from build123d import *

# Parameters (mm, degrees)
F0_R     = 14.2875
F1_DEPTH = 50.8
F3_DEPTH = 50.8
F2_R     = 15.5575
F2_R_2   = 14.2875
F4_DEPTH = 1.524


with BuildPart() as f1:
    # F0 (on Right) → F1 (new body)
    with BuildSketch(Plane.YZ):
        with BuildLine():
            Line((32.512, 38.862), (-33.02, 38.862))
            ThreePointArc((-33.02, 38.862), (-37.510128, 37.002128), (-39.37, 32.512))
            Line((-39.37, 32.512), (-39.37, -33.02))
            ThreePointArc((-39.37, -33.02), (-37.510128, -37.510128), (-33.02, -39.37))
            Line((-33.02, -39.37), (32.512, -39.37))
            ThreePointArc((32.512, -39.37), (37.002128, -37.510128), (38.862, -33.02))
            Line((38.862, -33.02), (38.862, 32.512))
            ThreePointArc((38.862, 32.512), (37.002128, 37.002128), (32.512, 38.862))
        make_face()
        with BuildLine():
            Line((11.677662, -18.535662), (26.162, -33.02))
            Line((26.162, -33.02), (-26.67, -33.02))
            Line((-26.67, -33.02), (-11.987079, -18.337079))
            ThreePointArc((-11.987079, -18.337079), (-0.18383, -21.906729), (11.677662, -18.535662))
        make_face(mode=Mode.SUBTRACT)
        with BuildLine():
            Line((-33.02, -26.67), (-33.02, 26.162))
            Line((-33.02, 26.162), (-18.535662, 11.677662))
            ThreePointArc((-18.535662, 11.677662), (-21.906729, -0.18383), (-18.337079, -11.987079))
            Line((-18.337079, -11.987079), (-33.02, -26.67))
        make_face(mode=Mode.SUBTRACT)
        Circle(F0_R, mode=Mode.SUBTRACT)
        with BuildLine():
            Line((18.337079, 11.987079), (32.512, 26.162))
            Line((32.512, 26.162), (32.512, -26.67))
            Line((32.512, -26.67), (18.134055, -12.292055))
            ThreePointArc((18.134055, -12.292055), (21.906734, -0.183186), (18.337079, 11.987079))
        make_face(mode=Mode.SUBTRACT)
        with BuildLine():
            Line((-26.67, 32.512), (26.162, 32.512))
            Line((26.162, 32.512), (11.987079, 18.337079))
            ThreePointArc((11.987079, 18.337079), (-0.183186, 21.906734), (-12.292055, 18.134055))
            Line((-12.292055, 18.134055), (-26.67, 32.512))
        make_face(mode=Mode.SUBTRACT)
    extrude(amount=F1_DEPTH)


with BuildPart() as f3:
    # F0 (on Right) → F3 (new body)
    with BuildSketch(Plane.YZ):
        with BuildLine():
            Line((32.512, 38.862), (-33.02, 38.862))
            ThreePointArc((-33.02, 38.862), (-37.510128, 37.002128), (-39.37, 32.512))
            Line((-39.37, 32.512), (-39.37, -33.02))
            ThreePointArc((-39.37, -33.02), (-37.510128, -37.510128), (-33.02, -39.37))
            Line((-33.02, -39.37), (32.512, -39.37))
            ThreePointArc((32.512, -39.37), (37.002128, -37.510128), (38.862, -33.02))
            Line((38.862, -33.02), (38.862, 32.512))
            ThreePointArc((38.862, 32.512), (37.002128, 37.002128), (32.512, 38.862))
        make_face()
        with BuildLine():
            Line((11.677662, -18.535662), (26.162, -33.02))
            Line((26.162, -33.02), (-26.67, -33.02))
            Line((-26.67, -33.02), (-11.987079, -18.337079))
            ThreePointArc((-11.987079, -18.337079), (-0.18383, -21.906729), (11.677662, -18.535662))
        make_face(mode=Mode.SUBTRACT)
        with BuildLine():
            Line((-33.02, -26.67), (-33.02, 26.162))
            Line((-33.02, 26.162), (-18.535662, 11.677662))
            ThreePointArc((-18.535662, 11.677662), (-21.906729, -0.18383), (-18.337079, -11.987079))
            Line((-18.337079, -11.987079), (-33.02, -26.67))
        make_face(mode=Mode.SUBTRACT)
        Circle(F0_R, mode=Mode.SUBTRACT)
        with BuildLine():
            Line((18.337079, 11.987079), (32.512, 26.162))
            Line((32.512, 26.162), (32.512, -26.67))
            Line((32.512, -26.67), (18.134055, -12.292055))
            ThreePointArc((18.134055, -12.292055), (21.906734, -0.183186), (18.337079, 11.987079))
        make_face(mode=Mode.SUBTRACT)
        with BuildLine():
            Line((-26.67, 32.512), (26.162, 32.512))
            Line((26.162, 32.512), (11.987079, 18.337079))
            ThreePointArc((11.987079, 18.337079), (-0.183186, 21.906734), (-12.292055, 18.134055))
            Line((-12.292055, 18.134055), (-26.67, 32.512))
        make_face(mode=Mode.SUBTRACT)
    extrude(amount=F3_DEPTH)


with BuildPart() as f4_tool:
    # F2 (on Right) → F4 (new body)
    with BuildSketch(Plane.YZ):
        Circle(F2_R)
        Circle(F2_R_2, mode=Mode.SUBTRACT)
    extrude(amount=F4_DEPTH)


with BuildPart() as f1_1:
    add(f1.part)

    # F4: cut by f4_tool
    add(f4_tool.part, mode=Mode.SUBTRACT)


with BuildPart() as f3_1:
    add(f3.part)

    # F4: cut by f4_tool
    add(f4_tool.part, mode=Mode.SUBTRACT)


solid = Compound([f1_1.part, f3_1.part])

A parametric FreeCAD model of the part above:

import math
import FreeCAD as App
import Part
import Sketcher

V = App.Vector
Q = App.Units.Quantity

doc = App.newDocument("Part")
body = doc.addObject("PartDesign::Body", "Body")

sketch1 = body.newObject("Sketcher::SketchObject", "Sketch")
sketch1.AttachmentSupport = (doc.getObject("YZ_Plane"), [""])
sketch1.MapMode = "FlatFace"
sketch1.addGeometry(Part.LineSegment(V(33, 39, 0), V(-33, 39, 0)), False)
sketch1.addGeometry(Part.ArcOfCircle(Part.Circle(V(-33, 33, 0), V(0, 0, 1), 6), math.radians(90), math.radians(180)), False)
sketch1.addGeometry(Part.LineSegment(V(-39, 33, 0), V(-39, -33, 0)), False)
sketch1.addGeometry(Part.ArcOfCircle(Part.Circle(V(-33, -33, 0), V(0, 0, 1), 6), math.radians(-180), math.radians(-90)), False)
sketch1.addGeometry(Part.LineSegment(V(-33, -39, 0), V(33, -39, 0)), False)
sketch1.addGeometry(Part.ArcOfCircle(Part.Circle(V(33, -33, 0), V(0, 0, 1), 6), math.radians(-90), math.radians(0)), False)
sketch1.addGeometry(Part.LineSegment(V(39, -33, 0), V(39, 33, 0)), False)
sketch1.addGeometry(Part.ArcOfCircle(Part.Circle(V(33, 33, 0), V(0, 0, 1), 6), math.radians(0), math.radians(90)), False)
sketch1.addGeometry(Part.ArcOfCircle(Part.Circle(V(0, 0, 0), V(0, 0, 1), 22), math.radians(-123), math.radians(-58)), False)
sketch1.addGeometry(Part.LineSegment(V(12, -19, 0), V(26, -33, 0)), False)
sketch1.addGeometry(Part.LineSegment(V(26, -33, 0), V(-27, -33, 0)), False)
sketch1.addGeometry(Part.LineSegment(V(-27, -33, 0), V(-12, -18, 0)), False)
sketch1.addGeometry(Part.LineSegment(V(-18, -12, 0), V(-33, -27, 0)), False)
sketch1.addGeometry(Part.LineSegment(V(-33, -27, 0), V(-33, 26, 0)), False)
sketch1.addGeometry(Part.LineSegment(V(-33, 26, 0), V(-19, 12, 0)), False)
sketch1.addGeometry(Part.ArcOfCircle(Part.Circle(V(0, 0, 0), V(0, 0, 1), 22), math.radians(148), math.radians(213)), False)
sketch1.addGeometry(Part.Circle(V(0, 0, 0), V(0, 0, 1), 14), False)
sketch1.addGeometry(Part.ArcOfCircle(Part.Circle(V(0, 0, 0), V(0, 0, 1), 22), math.radians(-34), math.radians(33)), False)
sketch1.addGeometry(Part.LineSegment(V(18, 12, 0), V(33, 26, 0)), False)
sketch1.addGeometry(Part.LineSegment(V(33, 26, 0), V(33, -27, 0)), False)
sketch1.addGeometry(Part.LineSegment(V(33, -27, 0), V(18, -12, 0)), False)
sketch1.addGeometry(Part.LineSegment(V(-12, 18, 0), V(-27, 33, 0)), False)
sketch1.addGeometry(Part.LineSegment(V(-27, 33, 0), V(26, 33, 0)), False)
sketch1.addGeometry(Part.LineSegment(V(26, 33, 0), V(12, 18, 0)), False)
sketch1.addGeometry(Part.ArcOfCircle(Part.Circle(V(0, 0, 0), V(0, 0, 1), 22), math.radians(57), math.radians(124)), False)
sketch1.addConstraint(Sketcher.Constraint("Tangent", 0, 2, 1, 1))
sketch1.addConstraint(Sketcher.Constraint("Tangent", 1, 2, 2, 1))
sketch1.addConstraint(Sketcher.Constraint("Tangent", 2, 2, 3, 1))
sketch1.addConstraint(Sketcher.Constraint("Tangent", 3, 2, 4, 1))
sketch1.addConstraint(Sketcher.Constraint("Tangent", 4, 2, 5, 1))
sketch1.addConstraint(Sketcher.Constraint("Tangent", 5, 2, 6, 1))
sketch1.addConstraint(Sketcher.Constraint("Tangent", 6, 2, 7, 1))
sketch1.addConstraint(Sketcher.Constraint("Tangent", 7, 2, 0, 1))
sketch1.addConstraint(Sketcher.Constraint("Coincident", 8, 2, 9, 1))
sketch1.addConstraint(Sketcher.Constraint("Coincident", 9, 2, 10, 1))
sketch1.addConstraint(Sketcher.Constraint("Coincident", 10, 2, 11, 1))
sketch1.addConstraint(Sketcher.Constraint("Coincident", 11, 2, 8, 1))
sketch1.addConstraint(Sketcher.Constraint("Coincident", 12, 2, 13, 1))
sketch1.addConstraint(Sketcher.Constraint("Coincident", 13, 2, 14, 1))
sketch1.addConstraint(Sketcher.Constraint("Coincident", 14, 2, 15, 1))
sketch1.addConstraint(Sketcher.Constraint("Coincident", 15, 2, 12, 1))
sketch1.addConstraint(Sketcher.Constraint("Coincident", 17, 2, 18, 1))
sketch1.addConstraint(Sketcher.Constraint("Coincident", 18, 2, 19, 1))
sketch1.addConstraint(Sketcher.Constraint("Coincident", 19, 2, 20, 1))
sketch1.addConstraint(Sketcher.Constraint("Coincident", 20, 2, 17, 1))
sketch1.addConstraint(Sketcher.Constraint("Coincident", 21, 2, 22, 1))
sketch1.addConstraint(Sketcher.Constraint("Coincident", 22, 2, 23, 1))
sketch1.addConstraint(Sketcher.Constraint("Coincident", 23, 2, 24, 1))
sketch1.addConstraint(Sketcher.Constraint("Coincident", 24, 2, 21, 1))
sketch1.addConstraint(Sketcher.Constraint("Horizontal", 0))
sketch1.addConstraint(Sketcher.Constraint("Vertical", 2))
sketch1.addConstraint(Sketcher.Constraint("Horizontal", 4))
sketch1.addConstraint(Sketcher.Constraint("Vertical", 6))
sketch1.addConstraint(Sketcher.Constraint("Horizontal", 10))
sketch1.addConstraint(Sketcher.Constraint("Vertical", 13))
sketch1.addConstraint(Sketcher.Constraint("Vertical", 19))
sketch1.addConstraint(Sketcher.Constraint("Horizontal", 22))
sketch1.addConstraint(Sketcher.Constraint("Coincident", 8, 3, -1, 1))
sketch1.addConstraint(Sketcher.Constraint("Coincident", 15, 3, -1, 1))
sketch1.addConstraint(Sketcher.Constraint("Coincident", 16, 3, -1, 1))
sketch1.addConstraint(Sketcher.Constraint("Coincident", 17, 3, -1, 1))
sketch1.addConstraint(Sketcher.Constraint("Coincident", 24, 3, -1, 1))
sketch1.addConstraint(Sketcher.Constraint("Equal", 1, 3))
sketch1.addConstraint(Sketcher.Constraint("Equal", 3, 5))
sketch1.addConstraint(Sketcher.Constraint("Equal", 5, 7))
sketch1.addConstraint(Sketcher.Constraint("Equal", 8, 15))
sketch1.addConstraint(Sketcher.Constraint("Equal", 17, 24))
sketch1.addConstraint(Sketcher.Constraint("Symmetric", 15, 2, 17, 2, -1, 1))
sketch1.addConstraint(Sketcher.Constraint("Perpendicular", 9, 11))
sketch1.addConstraint(Sketcher.Constraint("Parallel", 11, 12))
sketch1.addConstraint(Sketcher.Constraint("Perpendicular", 12, 14))
sketch1.addConstraint(Sketcher.Constraint("Perpendicular", 14, 18))
sketch1.addConstraint(Sketcher.Constraint("Perpendicular", 18, 20))
sketch1.addConstraint(Sketcher.Constraint("Parallel", 20, 21))
sketch1.addConstraint(Sketcher.Constraint("Perpendicular", 21, 23))
sketch1.addConstraint(Sketcher.Constraint("Horizontal", 5, 2, 9, 2))
sketch1.addConstraint(Sketcher.Constraint("Horizontal", 13, 2, 18, 2))
sketch1.addConstraint(Sketcher.Constraint("Horizontal", 12, 2, 19, 2))
sketch1.addConstraint(Sketcher.Constraint("Horizontal", 6, 2, 21, 2))
sketch1.addConstraint(Sketcher.Constraint("Vertical", 3, 2, 12, 2))
sketch1.addConstraint(Sketcher.Constraint("Vertical", 7, 2, 18, 2))
sketch1.addConstraint(Sketcher.Constraint("Vertical", 10, 2, 21, 2))
sketch1.addConstraint(Sketcher.Constraint("Vertical", 9, 2, 22, 2))
sketch1.addConstraint(Sketcher.Constraint("Equal", 4, 2))
sketch1.addConstraint(Sketcher.Constraint("Equal", 22, 13))
sketch1.addConstraint(Sketcher.Constraint("Equal", 11, 12))
sketch1.addConstraint(Sketcher.Constraint("Equal", 9, 14))
sketch1.addConstraint(Sketcher.Constraint("Equal", 20, 21))
sketch1.addConstraint(Sketcher.Constraint("Radius", 1, Q("0.25 in")))
sketch1.addConstraint(Sketcher.Constraint("Diameter", 16, Q("1.125 in")))
sketch1.addConstraint(Sketcher.Constraint("DistanceX", 0, 2, 0, 1, Q("2.58 in")))
sketch1.addConstraint(Sketcher.Constraint("DistanceX", 10, 2, 10, 1, Q("2.08 in")))
sketch1.addConstraint(Sketcher.Constraint("DistanceX", 1, 3, -1, 1, Q("1.3 in")))
sketch1.addConstraint(Sketcher.Constraint("Radius", 8, Q("0.8624999 in")))
pad1 = body.newObject("PartDesign::Pad", "Pad")
pad1.Profile = sketch1
pad1.Length = Q("2 in")
body2 = doc.addObject("PartDesign::Body", "Body001")

sketch2 = body2.newObject("Sketcher::SketchObject", "Sketch001")
sketch2.AttachmentSupport = (doc.getObject("YZ_Plane001"), [""])
sketch2.MapMode = "FlatFace"
sketch2.addGeometry(Part.LineSegment(V(33, 39, 0), V(-33, 39, 0)), False)
sketch2.addGeometry(Part.ArcOfCircle(Part.Circle(V(-33, 33, 0), V(0, 0, 1), 6), math.radians(90), math.radians(180)), False)
sketch2.addGeometry(Part.LineSegment(V(-39, 33, 0), V(-39, -33, 0)), False)
sketch2.addGeometry(Part.ArcOfCircle(Part.Circle(V(-33, -33, 0), V(0, 0, 1), 6), math.radians(-180), math.radians(-90)), False)
sketch2.addGeometry(Part.LineSegment(V(-33, -39, 0), V(33, -39, 0)), False)
sketch2.addGeometry(Part.ArcOfCircle(Part.Circle(V(33, -33, 0), V(0, 0, 1), 6), math.radians(-90), math.radians(0)), False)
sketch2.addGeometry(Part.LineSegment(V(39, -33, 0), V(39, 33, 0)), False)
sketch2.addGeometry(Part.ArcOfCircle(Part.Circle(V(33, 33, 0), V(0, 0, 1), 6), math.radians(0), math.radians(90)), False)
sketch2.addGeometry(Part.ArcOfCircle(Part.Circle(V(0, 0, 0), V(0, 0, 1), 22), math.radians(-123), math.radians(-58)), False)
sketch2.addGeometry(Part.LineSegment(V(12, -19, 0), V(26, -33, 0)), False)
sketch2.addGeometry(Part.LineSegment(V(26, -33, 0), V(-27, -33, 0)), False)
sketch2.addGeometry(Part.LineSegment(V(-27, -33, 0), V(-12, -18, 0)), False)
sketch2.addGeometry(Part.LineSegment(V(-18, -12, 0), V(-33, -27, 0)), False)
sketch2.addGeometry(Part.LineSegment(V(-33, -27, 0), V(-33, 26, 0)), False)
sketch2.addGeometry(Part.LineSegment(V(-33, 26, 0), V(-19, 12, 0)), False)
sketch2.addGeometry(Part.ArcOfCircle(Part.Circle(V(0, 0, 0), V(0, 0, 1), 22), math.radians(148), math.radians(213)), False)
sketch2.addGeometry(Part.Circle(V(0, 0, 0), V(0, 0, 1), 14), False)
sketch2.addGeometry(Part.ArcOfCircle(Part.Circle(V(0, 0, 0), V(0, 0, 1), 22), math.radians(-34), math.radians(33)), False)
sketch2.addGeometry(Part.LineSegment(V(18, 12, 0), V(33, 26, 0)), False)
sketch2.addGeometry(Part.LineSegment(V(33, 26, 0), V(33, -27, 0)), False)
sketch2.addGeometry(Part.LineSegment(V(33, -27, 0), V(18, -12, 0)), False)
sketch2.addGeometry(Part.LineSegment(V(-12, 18, 0), V(-27, 33, 0)), False)
sketch2.addGeometry(Part.LineSegment(V(-27, 33, 0), V(26, 33, 0)), False)
sketch2.addGeometry(Part.LineSegment(V(26, 33, 0), V(12, 18, 0)), False)
sketch2.addGeometry(Part.ArcOfCircle(Part.Circle(V(0, 0, 0), V(0, 0, 1), 22), math.radians(57), math.radians(124)), False)
sketch2.addConstraint(Sketcher.Constraint("Tangent", 0, 2, 1, 1))
sketch2.addConstraint(Sketcher.Constraint("Tangent", 1, 2, 2, 1))
sketch2.addConstraint(Sketcher.Constraint("Tangent", 2, 2, 3, 1))
sketch2.addConstraint(Sketcher.Constraint("Tangent", 3, 2, 4, 1))
sketch2.addConstraint(Sketcher.Constraint("Tangent", 4, 2, 5, 1))
sketch2.addConstraint(Sketcher.Constraint("Tangent", 5, 2, 6, 1))
sketch2.addConstraint(Sketcher.Constraint("Tangent", 6, 2, 7, 1))
sketch2.addConstraint(Sketcher.Constraint("Tangent", 7, 2, 0, 1))
sketch2.addConstraint(Sketcher.Constraint("Coincident", 8, 2, 9, 1))
sketch2.addConstraint(Sketcher.Constraint("Coincident", 9, 2, 10, 1))
sketch2.addConstraint(Sketcher.Constraint("Coincident", 10, 2, 11, 1))
sketch2.addConstraint(Sketcher.Constraint("Coincident", 11, 2, 8, 1))
sketch2.addConstraint(Sketcher.Constraint("Coincident", 12, 2, 13, 1))
sketch2.addConstraint(Sketcher.Constraint("Coincident", 13, 2, 14, 1))
sketch2.addConstraint(Sketcher.Constraint("Coincident", 14, 2, 15, 1))
sketch2.addConstraint(Sketcher.Constraint("Coincident", 15, 2, 12, 1))
sketch2.addConstraint(Sketcher.Constraint("Coincident", 17, 2, 18, 1))
sketch2.addConstraint(Sketcher.Constraint("Coincident", 18, 2, 19, 1))
sketch2.addConstraint(Sketcher.Constraint("Coincident", 19, 2, 20, 1))
sketch2.addConstraint(Sketcher.Constraint("Coincident", 20, 2, 17, 1))
sketch2.addConstraint(Sketcher.Constraint("Coincident", 21, 2, 22, 1))
sketch2.addConstraint(Sketcher.Constraint("Coincident", 22, 2, 23, 1))
sketch2.addConstraint(Sketcher.Constraint("Coincident", 23, 2, 24, 1))
sketch2.addConstraint(Sketcher.Constraint("Coincident", 24, 2, 21, 1))
sketch2.addConstraint(Sketcher.Constraint("Horizontal", 0))
sketch2.addConstraint(Sketcher.Constraint("Vertical", 2))
sketch2.addConstraint(Sketcher.Constraint("Horizontal", 4))
sketch2.addConstraint(Sketcher.Constraint("Vertical", 6))
sketch2.addConstraint(Sketcher.Constraint("Horizontal", 10))
sketch2.addConstraint(Sketcher.Constraint("Vertical", 13))
sketch2.addConstraint(Sketcher.Constraint("Vertical", 19))
sketch2.addConstraint(Sketcher.Constraint("Horizontal", 22))
sketch2.addConstraint(Sketcher.Constraint("Coincident", 8, 3, -1, 1))
sketch2.addConstraint(Sketcher.Constraint("Coincident", 15, 3, -1, 1))
sketch2.addConstraint(Sketcher.Constraint("Coincident", 16, 3, -1, 1))
sketch2.addConstraint(Sketcher.Constraint("Coincident", 17, 3, -1, 1))
sketch2.addConstraint(Sketcher.Constraint("Coincident", 24, 3, -1, 1))
sketch2.addConstraint(Sketcher.Constraint("Equal", 1, 3))
sketch2.addConstraint(Sketcher.Constraint("Equal", 3, 5))
sketch2.addConstraint(Sketcher.Constraint("Equal", 5, 7))
sketch2.addConstraint(Sketcher.Constraint("Equal", 8, 15))
sketch2.addConstraint(Sketcher.Constraint("Equal", 17, 24))
sketch2.addConstraint(Sketcher.Constraint("Symmetric", 15, 2, 17, 2, -1, 1))
sketch2.addConstraint(Sketcher.Constraint("Perpendicular", 9, 11))
sketch2.addConstraint(Sketcher.Constraint("Parallel", 11, 12))
sketch2.addConstraint(Sketcher.Constraint("Perpendicular", 12, 14))
sketch2.addConstraint(Sketcher.Constraint("Perpendicular", 14, 18))
sketch2.addConstraint(Sketcher.Constraint("Perpendicular", 18, 20))
sketch2.addConstraint(Sketcher.Constraint("Parallel", 20, 21))
sketch2.addConstraint(Sketcher.Constraint("Perpendicular", 21, 23))
sketch2.addConstraint(Sketcher.Constraint("Horizontal", 5, 2, 9, 2))
sketch2.addConstraint(Sketcher.Constraint("Horizontal", 13, 2, 18, 2))
sketch2.addConstraint(Sketcher.Constraint("Horizontal", 12, 2, 19, 2))
sketch2.addConstraint(Sketcher.Constraint("Horizontal", 6, 2, 21, 2))
sketch2.addConstraint(Sketcher.Constraint("Vertical", 3, 2, 12, 2))
sketch2.addConstraint(Sketcher.Constraint("Vertical", 7, 2, 18, 2))
sketch2.addConstraint(Sketcher.Constraint("Vertical", 10, 2, 21, 2))
sketch2.addConstraint(Sketcher.Constraint("Vertical", 9, 2, 22, 2))
sketch2.addConstraint(Sketcher.Constraint("Equal", 4, 2))
sketch2.addConstraint(Sketcher.Constraint("Equal", 22, 13))
sketch2.addConstraint(Sketcher.Constraint("Equal", 11, 12))
sketch2.addConstraint(Sketcher.Constraint("Equal", 9, 14))
sketch2.addConstraint(Sketcher.Constraint("Equal", 20, 21))
sketch2.addConstraint(Sketcher.Constraint("Radius", 1, Q("0.25 in")))
sketch2.addConstraint(Sketcher.Constraint("Diameter", 16, Q("1.125 in")))
sketch2.addConstraint(Sketcher.Constraint("DistanceX", 0, 2, 0, 1, Q("2.58 in")))
sketch2.addConstraint(Sketcher.Constraint("DistanceX", 10, 2, 10, 1, Q("2.08 in")))
sketch2.addConstraint(Sketcher.Constraint("DistanceX", 1, 3, -1, 1, Q("1.3 in")))
sketch2.addConstraint(Sketcher.Constraint("Radius", 8, Q("0.8624999 in")))
pad2 = body2.newObject("PartDesign::Pad", "Pad001")
pad2.Profile = sketch2
pad2.Length = Q("2 in")
body3 = doc.addObject("PartDesign::Body", "Body002")

sketch3 = body3.newObject("Sketcher::SketchObject", "Sketch002")
sketch3.AttachmentSupport = (doc.getObject("YZ_Plane002"), [""])
sketch3.MapMode = "FlatFace"
sketch3.addGeometry(Part.Circle(V(0, 0, 0), V(0, 0, 1), 16), False)
sketch3.addGeometry(Part.Circle(V(0, 0, 0), V(0, 0, 1), 14), False)
sketch3.addConstraint(Sketcher.Constraint("Coincident", 0, 3, -1, 1))
sketch3.addConstraint(Sketcher.Constraint("Coincident", 1, 3, -1, 1))
sketch3.addConstraint(Sketcher.Constraint("Diameter", 0, Q("1.225 in")))
sketch3.addConstraint(Sketcher.Constraint("Diameter", 1, Q("1.125 in")))
pad3 = body3.newObject("PartDesign::Pad", "Pad002")
pad3.Profile = sketch3
pad3.Length = Q("0.06 in")
doc.recompute()

body4 = doc.addObject("PartDesign::Body", "Body003")
body4.BaseFeature = body3
boolean = body.newObject("PartDesign::Boolean", "Boolean")
boolean.Type = "Cut"
boolean.addObjects([body4])
doc.recompute()

boolean2 = body2.newObject("PartDesign::Boolean", "Boolean001")
boolean2.Type = "Cut"
boolean2.addObjects([body3])

doc.recompute()
